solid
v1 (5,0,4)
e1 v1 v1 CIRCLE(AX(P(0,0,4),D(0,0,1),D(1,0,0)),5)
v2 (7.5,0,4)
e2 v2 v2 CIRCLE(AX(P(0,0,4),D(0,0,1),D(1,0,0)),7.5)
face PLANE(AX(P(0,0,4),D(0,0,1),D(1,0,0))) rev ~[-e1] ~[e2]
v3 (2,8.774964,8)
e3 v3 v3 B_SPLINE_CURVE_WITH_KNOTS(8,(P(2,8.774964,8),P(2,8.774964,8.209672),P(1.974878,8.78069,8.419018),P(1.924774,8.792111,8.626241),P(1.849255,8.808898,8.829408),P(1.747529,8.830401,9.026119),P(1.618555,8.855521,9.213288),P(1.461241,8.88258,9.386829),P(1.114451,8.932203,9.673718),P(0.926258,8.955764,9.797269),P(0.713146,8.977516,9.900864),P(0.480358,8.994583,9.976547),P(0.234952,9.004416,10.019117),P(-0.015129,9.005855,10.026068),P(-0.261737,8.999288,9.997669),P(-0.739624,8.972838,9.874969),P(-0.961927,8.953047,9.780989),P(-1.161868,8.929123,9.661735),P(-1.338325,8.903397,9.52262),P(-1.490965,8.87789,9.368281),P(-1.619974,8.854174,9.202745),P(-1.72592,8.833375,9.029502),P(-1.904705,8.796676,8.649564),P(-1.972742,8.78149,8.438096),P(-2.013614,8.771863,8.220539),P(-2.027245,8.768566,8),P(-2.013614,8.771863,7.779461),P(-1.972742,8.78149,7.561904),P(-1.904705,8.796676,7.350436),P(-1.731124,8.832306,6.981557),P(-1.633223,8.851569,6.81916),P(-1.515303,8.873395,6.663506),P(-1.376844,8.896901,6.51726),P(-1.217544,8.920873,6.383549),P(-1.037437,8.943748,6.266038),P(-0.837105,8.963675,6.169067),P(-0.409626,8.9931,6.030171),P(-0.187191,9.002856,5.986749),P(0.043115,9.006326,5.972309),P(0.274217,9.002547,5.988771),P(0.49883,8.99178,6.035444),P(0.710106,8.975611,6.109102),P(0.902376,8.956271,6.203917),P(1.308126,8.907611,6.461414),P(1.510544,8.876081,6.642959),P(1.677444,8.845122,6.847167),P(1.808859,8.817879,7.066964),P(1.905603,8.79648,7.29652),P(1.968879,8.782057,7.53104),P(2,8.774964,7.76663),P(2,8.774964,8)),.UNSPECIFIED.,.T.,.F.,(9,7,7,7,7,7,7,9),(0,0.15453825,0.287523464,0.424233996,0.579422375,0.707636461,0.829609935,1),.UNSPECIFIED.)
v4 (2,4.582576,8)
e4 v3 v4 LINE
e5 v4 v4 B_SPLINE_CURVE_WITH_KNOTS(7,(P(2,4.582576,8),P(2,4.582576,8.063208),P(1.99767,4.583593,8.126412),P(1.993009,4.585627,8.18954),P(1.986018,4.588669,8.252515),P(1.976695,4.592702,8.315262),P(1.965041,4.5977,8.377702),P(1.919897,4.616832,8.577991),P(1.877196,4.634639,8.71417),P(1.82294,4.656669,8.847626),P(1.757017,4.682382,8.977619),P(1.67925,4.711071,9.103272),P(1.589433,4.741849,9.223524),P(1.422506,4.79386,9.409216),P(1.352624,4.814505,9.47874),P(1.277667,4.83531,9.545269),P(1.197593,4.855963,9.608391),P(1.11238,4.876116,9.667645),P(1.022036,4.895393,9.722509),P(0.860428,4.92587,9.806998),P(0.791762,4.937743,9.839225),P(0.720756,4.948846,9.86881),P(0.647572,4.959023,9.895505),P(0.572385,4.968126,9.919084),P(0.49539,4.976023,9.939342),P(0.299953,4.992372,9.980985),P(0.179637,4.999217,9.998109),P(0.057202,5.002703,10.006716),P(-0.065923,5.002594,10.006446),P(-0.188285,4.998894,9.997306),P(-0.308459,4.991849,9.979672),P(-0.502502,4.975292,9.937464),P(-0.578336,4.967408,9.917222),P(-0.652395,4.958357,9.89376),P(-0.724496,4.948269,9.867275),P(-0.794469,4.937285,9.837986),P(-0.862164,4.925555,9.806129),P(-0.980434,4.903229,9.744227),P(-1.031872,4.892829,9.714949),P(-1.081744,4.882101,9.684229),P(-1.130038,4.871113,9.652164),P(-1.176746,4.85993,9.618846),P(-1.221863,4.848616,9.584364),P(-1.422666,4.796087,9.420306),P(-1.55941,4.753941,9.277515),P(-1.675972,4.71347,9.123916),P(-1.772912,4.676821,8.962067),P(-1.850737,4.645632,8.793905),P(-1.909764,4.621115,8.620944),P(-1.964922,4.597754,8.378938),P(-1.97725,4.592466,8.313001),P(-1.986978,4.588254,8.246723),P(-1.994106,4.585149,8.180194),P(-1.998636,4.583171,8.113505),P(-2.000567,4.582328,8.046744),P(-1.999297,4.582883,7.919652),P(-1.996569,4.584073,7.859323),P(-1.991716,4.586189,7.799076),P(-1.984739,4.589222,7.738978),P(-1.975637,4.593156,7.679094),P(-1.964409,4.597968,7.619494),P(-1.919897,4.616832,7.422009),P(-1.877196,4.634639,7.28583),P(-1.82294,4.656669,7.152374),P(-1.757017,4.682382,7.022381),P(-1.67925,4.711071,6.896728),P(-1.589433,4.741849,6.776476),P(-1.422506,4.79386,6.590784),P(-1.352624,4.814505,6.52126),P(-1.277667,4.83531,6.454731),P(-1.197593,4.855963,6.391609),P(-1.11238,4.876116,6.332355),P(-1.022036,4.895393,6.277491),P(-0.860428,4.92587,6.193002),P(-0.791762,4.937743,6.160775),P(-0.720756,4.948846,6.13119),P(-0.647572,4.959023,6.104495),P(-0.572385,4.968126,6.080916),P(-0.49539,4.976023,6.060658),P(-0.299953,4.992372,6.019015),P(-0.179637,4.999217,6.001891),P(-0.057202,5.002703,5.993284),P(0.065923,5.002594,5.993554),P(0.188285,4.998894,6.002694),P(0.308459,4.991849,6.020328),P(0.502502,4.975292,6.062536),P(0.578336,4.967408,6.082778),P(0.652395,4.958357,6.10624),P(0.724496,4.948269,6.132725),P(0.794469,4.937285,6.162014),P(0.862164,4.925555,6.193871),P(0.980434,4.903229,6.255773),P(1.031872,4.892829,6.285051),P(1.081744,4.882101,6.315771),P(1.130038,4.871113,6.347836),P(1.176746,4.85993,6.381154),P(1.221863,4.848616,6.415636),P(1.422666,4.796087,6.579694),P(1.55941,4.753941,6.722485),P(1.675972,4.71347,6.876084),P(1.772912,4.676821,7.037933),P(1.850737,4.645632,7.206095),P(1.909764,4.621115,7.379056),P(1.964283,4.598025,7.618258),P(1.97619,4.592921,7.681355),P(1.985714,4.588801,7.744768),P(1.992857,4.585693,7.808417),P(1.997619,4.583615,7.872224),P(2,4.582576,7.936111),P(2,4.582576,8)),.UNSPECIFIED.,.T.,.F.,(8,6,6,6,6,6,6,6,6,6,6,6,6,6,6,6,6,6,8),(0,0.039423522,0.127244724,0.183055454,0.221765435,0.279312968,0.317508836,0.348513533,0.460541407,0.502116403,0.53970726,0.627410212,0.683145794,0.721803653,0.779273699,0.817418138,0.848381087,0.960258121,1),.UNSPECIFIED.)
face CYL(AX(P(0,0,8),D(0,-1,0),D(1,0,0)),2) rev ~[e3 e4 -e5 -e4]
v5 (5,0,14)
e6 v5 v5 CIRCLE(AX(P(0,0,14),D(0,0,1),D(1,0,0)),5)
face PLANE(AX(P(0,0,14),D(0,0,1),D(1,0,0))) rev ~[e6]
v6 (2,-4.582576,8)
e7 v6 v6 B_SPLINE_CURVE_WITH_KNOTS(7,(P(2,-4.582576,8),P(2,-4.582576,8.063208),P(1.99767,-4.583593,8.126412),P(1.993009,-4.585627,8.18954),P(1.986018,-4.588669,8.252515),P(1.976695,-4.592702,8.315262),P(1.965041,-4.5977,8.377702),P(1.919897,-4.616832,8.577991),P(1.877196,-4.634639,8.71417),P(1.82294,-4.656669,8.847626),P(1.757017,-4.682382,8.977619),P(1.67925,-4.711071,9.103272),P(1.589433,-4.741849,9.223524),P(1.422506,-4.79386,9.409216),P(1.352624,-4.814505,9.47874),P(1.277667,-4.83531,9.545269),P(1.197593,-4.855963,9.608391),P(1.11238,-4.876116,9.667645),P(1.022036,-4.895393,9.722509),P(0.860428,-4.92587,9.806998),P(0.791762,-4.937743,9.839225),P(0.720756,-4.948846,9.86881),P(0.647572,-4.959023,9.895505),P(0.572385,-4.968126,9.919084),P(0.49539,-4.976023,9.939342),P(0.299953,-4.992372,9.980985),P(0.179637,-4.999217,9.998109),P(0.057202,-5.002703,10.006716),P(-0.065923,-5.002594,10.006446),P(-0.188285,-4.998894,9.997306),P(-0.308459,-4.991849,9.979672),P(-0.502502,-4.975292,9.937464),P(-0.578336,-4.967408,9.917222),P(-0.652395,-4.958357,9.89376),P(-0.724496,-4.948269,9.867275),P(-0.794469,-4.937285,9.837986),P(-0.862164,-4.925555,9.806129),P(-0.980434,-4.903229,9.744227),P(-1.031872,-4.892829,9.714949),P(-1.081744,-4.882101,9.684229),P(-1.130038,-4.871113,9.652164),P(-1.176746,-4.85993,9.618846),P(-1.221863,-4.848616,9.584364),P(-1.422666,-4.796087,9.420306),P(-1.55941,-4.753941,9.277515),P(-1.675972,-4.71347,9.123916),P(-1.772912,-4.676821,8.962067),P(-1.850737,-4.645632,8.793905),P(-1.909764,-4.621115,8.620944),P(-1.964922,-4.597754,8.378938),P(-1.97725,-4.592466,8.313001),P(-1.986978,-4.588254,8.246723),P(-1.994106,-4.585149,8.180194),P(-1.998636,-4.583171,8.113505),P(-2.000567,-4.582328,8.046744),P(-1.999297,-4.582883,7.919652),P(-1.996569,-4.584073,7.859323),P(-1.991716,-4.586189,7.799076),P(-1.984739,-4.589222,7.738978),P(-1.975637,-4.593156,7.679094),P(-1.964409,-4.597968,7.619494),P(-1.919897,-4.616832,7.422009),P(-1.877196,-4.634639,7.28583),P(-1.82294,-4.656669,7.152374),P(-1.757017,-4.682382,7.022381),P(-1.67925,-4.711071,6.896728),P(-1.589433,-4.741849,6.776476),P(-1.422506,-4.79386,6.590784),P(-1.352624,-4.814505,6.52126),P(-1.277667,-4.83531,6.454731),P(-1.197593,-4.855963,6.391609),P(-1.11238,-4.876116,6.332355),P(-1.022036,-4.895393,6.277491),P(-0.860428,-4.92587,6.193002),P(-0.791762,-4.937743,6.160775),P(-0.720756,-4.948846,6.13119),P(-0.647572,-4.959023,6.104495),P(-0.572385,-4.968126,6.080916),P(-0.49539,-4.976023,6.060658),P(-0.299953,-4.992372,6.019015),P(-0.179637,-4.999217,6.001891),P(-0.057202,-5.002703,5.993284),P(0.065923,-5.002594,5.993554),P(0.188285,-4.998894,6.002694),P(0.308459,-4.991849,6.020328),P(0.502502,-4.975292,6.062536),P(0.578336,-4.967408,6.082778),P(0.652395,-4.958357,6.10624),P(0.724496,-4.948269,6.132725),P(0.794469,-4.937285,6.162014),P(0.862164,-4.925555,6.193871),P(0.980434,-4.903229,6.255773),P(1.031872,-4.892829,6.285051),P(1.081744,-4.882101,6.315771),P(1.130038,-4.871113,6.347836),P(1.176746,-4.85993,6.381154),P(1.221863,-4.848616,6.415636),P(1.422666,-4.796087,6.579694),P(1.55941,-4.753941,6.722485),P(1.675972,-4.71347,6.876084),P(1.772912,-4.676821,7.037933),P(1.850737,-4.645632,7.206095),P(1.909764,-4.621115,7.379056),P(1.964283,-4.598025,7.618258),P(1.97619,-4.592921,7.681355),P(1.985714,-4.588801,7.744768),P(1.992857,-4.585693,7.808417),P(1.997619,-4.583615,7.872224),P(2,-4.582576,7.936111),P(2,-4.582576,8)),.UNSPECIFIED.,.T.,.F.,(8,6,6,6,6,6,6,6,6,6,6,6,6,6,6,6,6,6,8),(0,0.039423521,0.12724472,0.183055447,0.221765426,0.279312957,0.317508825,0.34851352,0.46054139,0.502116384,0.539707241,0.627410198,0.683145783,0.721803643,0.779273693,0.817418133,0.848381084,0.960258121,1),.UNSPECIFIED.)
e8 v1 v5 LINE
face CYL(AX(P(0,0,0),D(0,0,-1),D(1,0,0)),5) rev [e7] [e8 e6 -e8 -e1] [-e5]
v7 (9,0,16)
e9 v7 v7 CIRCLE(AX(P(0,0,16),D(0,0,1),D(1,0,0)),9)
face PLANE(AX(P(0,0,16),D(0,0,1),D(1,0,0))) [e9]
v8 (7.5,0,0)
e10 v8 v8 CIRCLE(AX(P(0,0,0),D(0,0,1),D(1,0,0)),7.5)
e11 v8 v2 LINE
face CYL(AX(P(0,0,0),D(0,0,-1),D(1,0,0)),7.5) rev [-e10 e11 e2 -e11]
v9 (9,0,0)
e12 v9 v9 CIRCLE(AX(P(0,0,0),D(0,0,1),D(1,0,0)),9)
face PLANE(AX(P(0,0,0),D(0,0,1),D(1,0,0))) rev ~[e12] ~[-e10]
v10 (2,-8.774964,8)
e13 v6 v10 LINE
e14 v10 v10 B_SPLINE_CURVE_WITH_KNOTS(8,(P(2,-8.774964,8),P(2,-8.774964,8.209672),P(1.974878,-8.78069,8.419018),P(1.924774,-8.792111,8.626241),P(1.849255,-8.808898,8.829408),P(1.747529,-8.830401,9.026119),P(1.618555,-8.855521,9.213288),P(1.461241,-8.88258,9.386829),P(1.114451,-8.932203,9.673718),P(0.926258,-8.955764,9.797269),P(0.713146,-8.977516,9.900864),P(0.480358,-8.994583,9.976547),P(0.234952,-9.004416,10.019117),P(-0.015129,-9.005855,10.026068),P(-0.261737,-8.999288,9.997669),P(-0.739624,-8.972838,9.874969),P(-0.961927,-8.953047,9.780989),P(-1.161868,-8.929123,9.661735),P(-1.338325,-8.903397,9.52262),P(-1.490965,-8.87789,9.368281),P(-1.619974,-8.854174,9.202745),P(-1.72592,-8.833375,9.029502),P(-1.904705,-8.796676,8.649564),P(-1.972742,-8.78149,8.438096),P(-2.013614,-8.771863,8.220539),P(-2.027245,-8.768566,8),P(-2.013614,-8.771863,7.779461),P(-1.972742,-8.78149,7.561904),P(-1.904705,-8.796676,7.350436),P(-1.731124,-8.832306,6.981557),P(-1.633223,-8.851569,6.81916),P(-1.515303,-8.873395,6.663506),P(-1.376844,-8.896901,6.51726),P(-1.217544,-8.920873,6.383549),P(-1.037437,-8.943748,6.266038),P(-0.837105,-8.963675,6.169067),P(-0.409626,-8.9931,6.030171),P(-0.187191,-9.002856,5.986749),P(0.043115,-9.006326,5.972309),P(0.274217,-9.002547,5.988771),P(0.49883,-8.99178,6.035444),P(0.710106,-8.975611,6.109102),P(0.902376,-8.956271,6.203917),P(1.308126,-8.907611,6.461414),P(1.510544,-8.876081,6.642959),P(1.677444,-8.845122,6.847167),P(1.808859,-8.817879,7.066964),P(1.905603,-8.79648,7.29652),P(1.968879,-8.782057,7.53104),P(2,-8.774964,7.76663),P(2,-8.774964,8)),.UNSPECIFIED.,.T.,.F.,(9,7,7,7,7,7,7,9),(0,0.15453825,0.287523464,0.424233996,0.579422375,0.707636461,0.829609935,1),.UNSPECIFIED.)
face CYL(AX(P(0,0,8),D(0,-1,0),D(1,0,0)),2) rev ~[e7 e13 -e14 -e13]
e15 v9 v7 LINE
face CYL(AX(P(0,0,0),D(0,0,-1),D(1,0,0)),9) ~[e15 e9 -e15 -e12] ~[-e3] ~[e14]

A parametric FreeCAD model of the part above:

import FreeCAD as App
import Part
import Sketcher

V = App.Vector
Q = App.Units.Quantity

doc = App.newDocument("Part")
body = doc.addObject("PartDesign::Body", "Body")

# Sketch on XY plane
sketch1 = body.newObject("Sketcher::SketchObject", "Sketch")
sketch1.AttachmentSupport = (doc.getObject("XY_Plane"), [""])
sketch1.MapMode = "FlatFace"
sketch1.addGeometry(Part.Circle(V(0, 0, 0), V(0, 0, 1), 9), False)
sketch1.addConstraint([
    Sketcher.Constraint("Coincident", 0, 3, -1, 1),
    Sketcher.Constraint("Diameter", 0, Q("18 mm")),
])
pad1 = body.newObject("PartDesign::Pad", "Pad")
pad1.Profile = sketch1
pad1.Length = 16

# Sketch on XY plane
sketch2 = body.newObject("Sketcher::SketchObject", "Sketch001")
sketch2.AttachmentSupport = (doc.getObject("XY_Plane"), [""])
sketch2.MapMode = "FlatFace"
sketch2.addGeometry(Part.Circle(V(0, 0, 0), V(0, 0, 1), 5), False)
sketch2.addConstraint([
    Sketcher.Constraint("Coincident", 0, 3, -1, 1),
    Sketcher.Constraint("Diameter", 0, Q("10 mm")),
])
pocket1 = body.newObject("PartDesign::Pocket", "Pocket")
pocket1.Profile = sketch2
pocket1.Length = 14
pocket1.Reversed = True

# Sketch on XY plane
sketch3 = body.newObject("Sketcher::SketchObject", "Sketch002")
sketch3.AttachmentSupport = (doc.getObject("XY_Plane"), [""])
sketch3.MapMode = "FlatFace"
sketch3.addGeometry([
    Part.Circle(V(0, 0, 0), V(0, 0, 1), 7.5),
    Part.Circle(V(0, 0, 0), V(0, 0, 1), 5),
], False)
sketch3.addConstraint([
    Sketcher.Constraint("Coincident", 0, 3, -1, 1),
    Sketcher.Constraint("Coincident", 1, 3, -1, 1),
    Sketcher.Constraint("Diameter", 0, Q("15 mm")),
    Sketcher.Constraint("Diameter", 1, Q("10 mm")),
])
pocket2 = body.newObject("PartDesign::Pocket", "Pocket001")
pocket2.Profile = sketch3
pocket2.Length = 4
pocket2.Reversed = True

# Sketch on XZ plane
sketch4 = body.newObject("Sketcher::SketchObject", "Sketch003")
sketch4.AttachmentSupport = (doc.getObject("XZ_Plane"), [""])
sketch4.MapMode = "FlatFace"
sketch4.addGeometry(Part.Circle(V(0, 8, 0), V(0, 0, 1), 2), False)
sketch4.addConstraint([
    Sketcher.Constraint("PointOnObject", 0, 3, -2),
    Sketcher.Constraint("Diameter", 0, Q("4 mm")),
    Sketcher.Constraint("DistanceY", -1, 1, 0, 3, Q("8 mm")),
])
pocket3 = body.newObject("PartDesign::Pocket", "Pocket002")
pocket3.Profile = sketch4
pocket3.Length = 25
pocket3.Midplane = True

doc.recompute()
